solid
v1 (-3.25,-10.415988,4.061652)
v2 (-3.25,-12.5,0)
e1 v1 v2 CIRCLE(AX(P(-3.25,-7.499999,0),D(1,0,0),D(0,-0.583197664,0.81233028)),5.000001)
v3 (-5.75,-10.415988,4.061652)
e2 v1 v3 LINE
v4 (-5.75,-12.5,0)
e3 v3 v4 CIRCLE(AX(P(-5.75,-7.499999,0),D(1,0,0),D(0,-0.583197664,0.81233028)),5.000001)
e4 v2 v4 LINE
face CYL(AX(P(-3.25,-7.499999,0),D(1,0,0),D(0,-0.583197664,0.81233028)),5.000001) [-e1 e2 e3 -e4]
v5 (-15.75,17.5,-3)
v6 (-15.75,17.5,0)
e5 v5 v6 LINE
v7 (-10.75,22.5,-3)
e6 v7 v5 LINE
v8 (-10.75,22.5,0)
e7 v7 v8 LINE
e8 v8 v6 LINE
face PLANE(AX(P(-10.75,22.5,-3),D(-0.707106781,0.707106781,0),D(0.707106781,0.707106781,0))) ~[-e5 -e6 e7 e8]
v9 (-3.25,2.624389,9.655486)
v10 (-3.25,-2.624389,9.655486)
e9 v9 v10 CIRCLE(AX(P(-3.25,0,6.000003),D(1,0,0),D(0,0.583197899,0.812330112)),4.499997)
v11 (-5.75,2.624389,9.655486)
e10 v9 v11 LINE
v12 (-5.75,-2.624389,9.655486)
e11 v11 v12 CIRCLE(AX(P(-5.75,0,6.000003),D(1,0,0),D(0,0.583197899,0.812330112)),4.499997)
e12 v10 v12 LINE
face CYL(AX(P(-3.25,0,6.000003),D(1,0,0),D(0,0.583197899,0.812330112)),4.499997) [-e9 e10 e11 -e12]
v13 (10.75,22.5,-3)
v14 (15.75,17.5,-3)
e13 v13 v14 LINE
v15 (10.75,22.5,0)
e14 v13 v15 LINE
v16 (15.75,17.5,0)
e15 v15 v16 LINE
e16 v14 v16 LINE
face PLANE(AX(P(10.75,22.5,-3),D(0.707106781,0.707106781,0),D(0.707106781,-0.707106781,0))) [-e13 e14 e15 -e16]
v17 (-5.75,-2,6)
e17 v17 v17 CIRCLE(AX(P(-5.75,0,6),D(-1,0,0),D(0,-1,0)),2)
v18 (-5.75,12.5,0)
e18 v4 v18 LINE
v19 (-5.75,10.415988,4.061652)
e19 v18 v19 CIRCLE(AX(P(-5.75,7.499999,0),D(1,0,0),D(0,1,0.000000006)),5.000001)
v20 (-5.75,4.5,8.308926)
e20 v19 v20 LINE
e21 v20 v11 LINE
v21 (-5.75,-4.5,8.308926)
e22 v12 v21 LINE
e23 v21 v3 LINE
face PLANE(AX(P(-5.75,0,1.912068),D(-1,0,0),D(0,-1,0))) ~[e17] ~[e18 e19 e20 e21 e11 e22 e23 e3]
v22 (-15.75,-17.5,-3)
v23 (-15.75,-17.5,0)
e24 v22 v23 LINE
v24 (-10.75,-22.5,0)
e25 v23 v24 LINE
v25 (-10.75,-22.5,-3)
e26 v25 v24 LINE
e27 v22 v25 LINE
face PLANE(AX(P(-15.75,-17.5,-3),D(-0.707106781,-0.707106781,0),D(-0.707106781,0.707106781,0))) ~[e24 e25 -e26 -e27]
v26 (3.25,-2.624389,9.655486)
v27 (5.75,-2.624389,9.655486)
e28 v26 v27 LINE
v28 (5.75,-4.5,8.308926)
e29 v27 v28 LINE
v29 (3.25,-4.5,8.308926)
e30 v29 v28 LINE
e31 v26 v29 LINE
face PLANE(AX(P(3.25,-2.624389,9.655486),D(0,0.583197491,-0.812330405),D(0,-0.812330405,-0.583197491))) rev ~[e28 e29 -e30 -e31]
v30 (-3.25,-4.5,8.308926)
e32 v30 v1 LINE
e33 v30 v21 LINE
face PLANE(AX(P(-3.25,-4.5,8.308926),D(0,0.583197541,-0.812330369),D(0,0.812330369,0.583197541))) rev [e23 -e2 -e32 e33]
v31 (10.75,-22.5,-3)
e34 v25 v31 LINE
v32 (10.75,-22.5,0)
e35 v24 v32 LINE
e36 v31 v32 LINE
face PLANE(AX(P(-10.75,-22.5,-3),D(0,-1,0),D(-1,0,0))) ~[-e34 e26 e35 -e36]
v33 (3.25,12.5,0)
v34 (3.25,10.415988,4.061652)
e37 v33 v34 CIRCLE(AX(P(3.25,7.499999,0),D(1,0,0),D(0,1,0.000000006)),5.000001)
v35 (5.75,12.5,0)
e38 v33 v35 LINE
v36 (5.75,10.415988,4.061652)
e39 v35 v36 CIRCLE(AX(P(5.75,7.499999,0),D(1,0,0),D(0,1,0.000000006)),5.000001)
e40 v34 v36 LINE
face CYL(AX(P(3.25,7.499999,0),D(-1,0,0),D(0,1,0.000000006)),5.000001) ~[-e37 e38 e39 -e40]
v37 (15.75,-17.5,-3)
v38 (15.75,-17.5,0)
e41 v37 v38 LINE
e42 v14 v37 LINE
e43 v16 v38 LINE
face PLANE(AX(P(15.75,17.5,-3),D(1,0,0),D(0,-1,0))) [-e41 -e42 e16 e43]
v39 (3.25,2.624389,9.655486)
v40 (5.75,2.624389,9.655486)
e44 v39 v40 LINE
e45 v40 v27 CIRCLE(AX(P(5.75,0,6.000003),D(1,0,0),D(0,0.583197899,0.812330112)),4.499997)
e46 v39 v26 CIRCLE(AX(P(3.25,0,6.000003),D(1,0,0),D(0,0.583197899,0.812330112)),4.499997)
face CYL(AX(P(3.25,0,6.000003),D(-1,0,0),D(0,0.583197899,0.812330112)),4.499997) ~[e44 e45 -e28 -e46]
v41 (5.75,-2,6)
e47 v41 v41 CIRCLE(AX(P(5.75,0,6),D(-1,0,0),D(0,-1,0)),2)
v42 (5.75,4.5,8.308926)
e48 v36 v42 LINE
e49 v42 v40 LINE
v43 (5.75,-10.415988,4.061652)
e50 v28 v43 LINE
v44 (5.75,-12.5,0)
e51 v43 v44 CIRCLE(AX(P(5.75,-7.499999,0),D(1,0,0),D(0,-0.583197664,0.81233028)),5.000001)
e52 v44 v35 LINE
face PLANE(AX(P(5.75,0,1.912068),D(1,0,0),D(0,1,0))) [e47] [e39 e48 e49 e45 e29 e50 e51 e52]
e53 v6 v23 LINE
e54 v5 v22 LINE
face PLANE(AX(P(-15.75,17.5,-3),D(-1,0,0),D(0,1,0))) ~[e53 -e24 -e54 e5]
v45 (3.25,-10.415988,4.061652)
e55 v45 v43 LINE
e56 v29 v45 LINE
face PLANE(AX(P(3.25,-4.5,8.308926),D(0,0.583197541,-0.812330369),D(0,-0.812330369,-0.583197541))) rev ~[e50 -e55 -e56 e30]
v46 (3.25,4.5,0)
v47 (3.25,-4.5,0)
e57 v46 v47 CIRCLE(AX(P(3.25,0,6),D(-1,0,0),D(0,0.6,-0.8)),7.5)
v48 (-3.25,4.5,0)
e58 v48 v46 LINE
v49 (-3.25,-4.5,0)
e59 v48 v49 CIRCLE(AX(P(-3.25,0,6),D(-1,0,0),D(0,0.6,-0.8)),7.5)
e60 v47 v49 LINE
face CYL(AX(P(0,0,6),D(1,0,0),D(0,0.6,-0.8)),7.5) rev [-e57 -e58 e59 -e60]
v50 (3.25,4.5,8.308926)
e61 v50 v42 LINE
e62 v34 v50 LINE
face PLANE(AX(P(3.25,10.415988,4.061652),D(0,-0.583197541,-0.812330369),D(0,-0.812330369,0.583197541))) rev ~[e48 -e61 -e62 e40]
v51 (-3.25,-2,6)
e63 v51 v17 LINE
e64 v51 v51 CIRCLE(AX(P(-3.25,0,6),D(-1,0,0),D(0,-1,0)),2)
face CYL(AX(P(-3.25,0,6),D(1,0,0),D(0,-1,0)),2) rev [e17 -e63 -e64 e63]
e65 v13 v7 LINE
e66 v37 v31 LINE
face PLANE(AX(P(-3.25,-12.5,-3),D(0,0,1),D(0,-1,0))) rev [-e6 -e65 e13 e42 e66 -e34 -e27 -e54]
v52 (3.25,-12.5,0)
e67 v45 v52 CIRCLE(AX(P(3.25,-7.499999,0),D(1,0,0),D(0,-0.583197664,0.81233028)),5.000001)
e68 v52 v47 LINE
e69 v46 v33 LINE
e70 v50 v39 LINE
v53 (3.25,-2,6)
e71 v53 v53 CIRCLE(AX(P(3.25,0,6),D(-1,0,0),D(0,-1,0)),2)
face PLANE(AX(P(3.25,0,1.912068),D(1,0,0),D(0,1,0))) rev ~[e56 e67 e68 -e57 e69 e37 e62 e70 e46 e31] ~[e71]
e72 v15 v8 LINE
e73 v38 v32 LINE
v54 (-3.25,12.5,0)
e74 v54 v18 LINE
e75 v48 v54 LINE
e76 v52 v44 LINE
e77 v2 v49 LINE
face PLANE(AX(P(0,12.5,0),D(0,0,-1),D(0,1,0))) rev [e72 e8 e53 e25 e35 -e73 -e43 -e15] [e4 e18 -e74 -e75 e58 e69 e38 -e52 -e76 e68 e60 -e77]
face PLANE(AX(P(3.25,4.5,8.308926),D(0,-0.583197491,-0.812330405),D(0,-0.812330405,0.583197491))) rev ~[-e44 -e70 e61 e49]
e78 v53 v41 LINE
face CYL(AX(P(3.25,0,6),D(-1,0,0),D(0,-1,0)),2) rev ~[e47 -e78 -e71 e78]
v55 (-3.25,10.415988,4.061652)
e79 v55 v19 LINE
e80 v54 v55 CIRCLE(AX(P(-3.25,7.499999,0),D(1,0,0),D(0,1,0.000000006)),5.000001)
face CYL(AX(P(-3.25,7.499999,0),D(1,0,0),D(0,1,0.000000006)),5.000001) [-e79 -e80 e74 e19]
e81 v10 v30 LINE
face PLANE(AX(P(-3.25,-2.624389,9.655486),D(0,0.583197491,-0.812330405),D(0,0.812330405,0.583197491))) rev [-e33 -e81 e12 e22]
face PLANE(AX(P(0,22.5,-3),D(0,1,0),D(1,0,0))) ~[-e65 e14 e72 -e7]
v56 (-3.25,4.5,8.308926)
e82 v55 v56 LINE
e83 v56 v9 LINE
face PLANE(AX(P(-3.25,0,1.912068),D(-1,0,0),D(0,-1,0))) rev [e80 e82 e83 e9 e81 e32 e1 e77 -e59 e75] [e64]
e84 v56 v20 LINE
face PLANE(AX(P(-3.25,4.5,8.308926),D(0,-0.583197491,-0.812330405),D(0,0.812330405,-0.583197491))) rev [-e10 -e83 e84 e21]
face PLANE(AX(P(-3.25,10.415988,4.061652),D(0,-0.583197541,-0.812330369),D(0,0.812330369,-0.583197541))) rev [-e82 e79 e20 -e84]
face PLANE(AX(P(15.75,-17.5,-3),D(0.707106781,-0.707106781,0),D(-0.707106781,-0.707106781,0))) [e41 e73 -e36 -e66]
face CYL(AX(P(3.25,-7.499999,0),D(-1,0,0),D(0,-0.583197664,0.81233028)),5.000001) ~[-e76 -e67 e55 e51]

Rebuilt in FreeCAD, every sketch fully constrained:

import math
import FreeCAD as App
import Part
import Sketcher

V = App.Vector
Q = App.Units.Quantity

doc = App.newDocument("Part")
body = doc.addObject("PartDesign::Body", "Body")

sketch1 = doc.addObject("Sketcher::SketchObject", "Sketch")
body.addObject(sketch1)
sketch1.AttachmentSupport = (doc.YZ_Plane, [""])
sketch1.MapMode = "FlatFace"
sketch1.addGeometry([
    Part.LineSegment(V(-12.5, 0, 0), V(-12.5, -3, 0)),
    Part.LineSegment(V(-12.5, -3, 0), V(12.5, -3, 0)),
    Part.LineSegment(V(12.5, -3, 0), V(12.5, 0, 0)),
    Part.LineSegment(V(12.5, 0, 0), V(4.5, 0, 0)),
    Part.ArcOfCircle(Part.Circle(V(0, 6, 0), V(0, 0, 1), 7.5), math.radians(-126.869898), math.radians(-53.130102)),
    Part.LineSegment(V(-4.5, 0, 0), V(-12.5, 0, 0)),
], False)
sketch1.addConstraint([
    Sketcher.Constraint("Coincident", 0, 2, 1, 1),
    Sketcher.Constraint("Coincident", 1, 2, 2, 1),
    Sketcher.Constraint("Coincident", 2, 2, 3, 1),
    Sketcher.Constraint("Coincident", 3, 2, 4, 2),
    Sketcher.Constraint("Coincident", 4, 1, 5, 1),
    Sketcher.Constraint("Coincident", 5, 2, 0, 1),
    Sketcher.Constraint("Vertical", 0),
    Sketcher.Constraint("Horizontal", 1),
    Sketcher.Constraint("Vertical", 2),
    Sketcher.Constraint("Horizontal", 3),
    Sketcher.Constraint("Horizontal", 5),
    Sketcher.Constraint("Symmetric", 3, 2, 4, 1, -1, 1),
    Sketcher.Constraint("Symmetric", 2, 2, 5, 2, -2),
    Sketcher.Constraint("Radius", 4, Q("7.5 mm")),
    Sketcher.Constraint("DistanceX", 1, 1, 1, 2, Q("25 mm")),
    Sketcher.Constraint("DistanceX", 3, 2, 3, 1, Q("8 mm")),
    Sketcher.Constraint("DistanceY", 0, 2, 0, 1, Q("3 mm")),
])
pad1 = doc.addObject("PartDesign::Pad", "Pad")
body.addObject(pad1)
pad1.Profile = sketch1
pad1.Length = 3.25

sketch2 = doc.addObject("Sketcher::SketchObject", "Sketch001")
body.addObject(sketch2)
sketch2.AttachmentSupport = (doc.YZ_Plane, [""])
sketch2.MapMode = "FlatFace"
sketch2.AttachmentOffset = App.Placement(V(0, 0, 3.25), App.Rotation())
sketch2.addGeometry([
    Part.LineSegment(V(-2.624389, 9.655486, 0), V(-4.5, 8.308926, 0)),
    Part.LineSegment(V(-4.5, 8.308926, 0), V(-10.415988, 4.061652, 0)),
    Part.ArcOfCircle(Part.Circle(V(-7.499999, 0, 0), V(0, 0, 1), 5.000001), math.radians(125.675765), math.radians(180)),
    Part.LineSegment(V(-12.5, 0, 0), V(-12.5, -3, 0)),
    Part.LineSegment(V(-12.5, -3, 0), V(12.5, -3, 0)),
    Part.LineSegment(V(12.5, -3, 0), V(12.5, 0, 0)),
    Part.ArcOfCircle(Part.Circle(V(7.499999, 0, 0), V(0, 0, 1), 5.000001), math.radians(0), math.radians(54.324235)),
    Part.LineSegment(V(10.415988, 4.061652, 0), V(4.5, 8.308926, 0)),
    Part.LineSegment(V(4.5, 8.308926, 0), V(2.624389, 9.655486, 0)),
    Part.ArcOfCircle(Part.Circle(V(0, 6.000003, 0), V(0, 0, 1), 4.499997), math.radians(54.324218), math.radians(125.675782)),
    Part.Circle(V(0, 6, 0), V(0, 0, 1), 2),
], False)
sketch2.addConstraint([
    Sketcher.Constraint("Coincident", 0, 2, 1, 1),
    Sketcher.Constraint("Tangent", 1, 2, 2, 1),
    Sketcher.Constraint("Tangent", 2, 2, 3, 1),
    Sketcher.Constraint("Coincident", 3, 2, 4, 1),
    Sketcher.Constraint("Coincident", 4, 2, 5, 1),
    Sketcher.Constraint("Tangent", 5, 2, 6, 1),
    Sketcher.Constraint("Tangent", 6, 2, 7, 1),
    Sketcher.Constraint("Coincident", 7, 2, 8, 1),
    Sketcher.Constraint("Tangent", 8, 2, 9, 1),
    Sketcher.Constraint("Tangent", 9, 2, 0, 1),
    Sketcher.Constraint("Vertical", 3),
    Sketcher.Constraint("Horizontal", 4),
    Sketcher.Constraint("Vertical", 5),
    Sketcher.Constraint("Coincident", 10, 3, 9, 3),
    Sketcher.Constraint("Equal", 2, 6),
    Sketcher.Constraint("Symmetric", 2, 3, 6, 3, -1, 1),
    Sketcher.Constraint("Symmetric", 1, 2, 6, 2, -2),
    Sketcher.Constraint("PointOnObject", 9, 3, -2),
    Sketcher.Constraint("Parallel", 0, 1),
    Sketcher.Constraint("Horizontal", 0, 2, 7, 2),
    Sketcher.Constraint("Diameter", 10, Q("4 mm")),
    Sketcher.Constraint("Radius", 2, Q("5.000001 mm")),
    Sketcher.Constraint("DistanceX", 4, 1, 4, 2, Q("25 mm")),
    Sketcher.Constraint("DistanceY", 3, 2, 3, 1, Q("3 mm")),
    Sketcher.Constraint("DistanceY", -1, 1, 10, 3, Q("6 mm")),
    Sketcher.Constraint("DistanceX", 2, 3, 0, 2, Q("2.999999 mm")),
    Sketcher.Constraint("Radius", 9, Q("4.499997 mm")),
])
pad2 = doc.addObject("PartDesign::Pad", "Pad001")
body.addObject(pad2)
pad2.Profile = sketch2
pad2.Length = 2.5

sketch3 = doc.addObject("Sketcher::SketchObject", "Sketch002")
body.addObject(sketch3)
sketch3.AttachmentSupport = (doc.XY_Plane, [""])
sketch3.MapMode = "FlatFace"
sketch3.AttachmentOffset = App.Placement(V(0, 0, -3), App.Rotation())
sketch3.addGeometry([
    Part.LineSegment(V(4.75, 11.5, 0), V(0, 11.5, 0)),
    Part.LineSegment(V(0, 11.5, 0), V(0, 22.5, 0)),
    Part.LineSegment(V(0, 22.5, 0), V(10.75, 22.5, 0)),
    Part.LineSegment(V(10.75, 22.5, 0), V(15.75, 17.5, 0)),
    Part.LineSegment(V(15.75, 17.5, 0), V(15.75, -17.5, 0)),
    Part.LineSegment(V(15.75, -17.5, 0), V(10.75, -22.5, 0)),
    Part.LineSegment(V(10.75, -22.5, 0), V(0, -22.5, 0)),
    Part.LineSegment(V(0, -22.5, 0), V(0, -11.5, 0)),
    Part.LineSegment(V(0, -11.5, 0), V(4.75, -11.5, 0)),
    Part.LineSegment(V(4.75, -11.5, 0), V(4.75, 11.5, 0)),
], False)
sketch3.addConstraint([
    Sketcher.Constraint("Coincident", 0, 2, 1, 1),
    Sketcher.Constraint("Coincident", 1, 2, 2, 1),
    Sketcher.Constraint("Coincident", 2, 2, 3, 1),
    Sketcher.Constraint("Coincident", 3, 2, 4, 1),
    Sketcher.Constraint("Coincident", 4, 2, 5, 1),
    Sketcher.Constraint("Coincident", 5, 2, 6, 1),
    Sketcher.Constraint("Coincident", 6, 2, 7, 1),
    Sketcher.Constraint("Coincident", 7, 2, 8, 1),
    Sketcher.Constraint("Coincident", 8, 2, 9, 1),
    Sketcher.Constraint("Coincident", 9, 2, 0, 1),
    Sketcher.Constraint("Horizontal", 0),
    Sketcher.Constraint("Vertical", 1),
    Sketcher.Constraint("Horizontal", 2),
    Sketcher.Constraint("Vertical", 4),
    Sketcher.Constraint("Horizontal", 6),
    Sketcher.Constraint("Vertical", 7),
    Sketcher.Constraint("Horizontal", 8),
    Sketcher.Constraint("Vertical", 9),
    Sketcher.Constraint("Symmetric", 1, 2, 6, 2, -1, 1),
    Sketcher.Constraint("Symmetric", 0, 2, 7, 2, -1),
    Sketcher.Constraint("Perpendicular", 3, 5),
    Sketcher.Constraint("Vertical", 2, 2, 5, 2),
    Sketcher.Constraint("Equal", 3, 5),
    Sketcher.Constraint("DistanceY", 1, 1, 1, 2, Q("11 mm")),
    Sketcher.Constraint("DistanceY", 4, 2, 4, 1, Q("35 mm")),
    Sketcher.Constraint("DistanceY", 9, 1, 9, 2, Q("23 mm")),
    Sketcher.Constraint("DistanceX", 8, 2, 4, 2, Q("11 mm")),
    Sketcher.Constraint("DistanceX", 0, 2, 0, 1, Q("4.75 mm")),
])
pad3 = doc.addObject("PartDesign::Pad", "Pad002")
body.addObject(pad3)
pad3.Profile = sketch3
pad3.Length = 3
body2 = doc.addObject("PartDesign::Body", "Body001")
doc.recompute()

body2.BaseFeature = body
doc.recompute()

mirroring = doc.addObject("Part::Mirroring", "Mirroring")
mirroring.Source = body
mirroring.Base = V(0, 0, 0)
mirroring.Normal = V(1, 0, 0)
body3 = doc.addObject("PartDesign::Body", "Body002")
body3.BaseFeature = mirroring
boolean = doc.addObject("PartDesign::Boolean", "Boolean")
body2.addObject(boolean)
boolean.Type = "Fuse"
boolean.addObjects([body3])
doc.recompute()
mirroring.Visibility = False

doc.recompute()
